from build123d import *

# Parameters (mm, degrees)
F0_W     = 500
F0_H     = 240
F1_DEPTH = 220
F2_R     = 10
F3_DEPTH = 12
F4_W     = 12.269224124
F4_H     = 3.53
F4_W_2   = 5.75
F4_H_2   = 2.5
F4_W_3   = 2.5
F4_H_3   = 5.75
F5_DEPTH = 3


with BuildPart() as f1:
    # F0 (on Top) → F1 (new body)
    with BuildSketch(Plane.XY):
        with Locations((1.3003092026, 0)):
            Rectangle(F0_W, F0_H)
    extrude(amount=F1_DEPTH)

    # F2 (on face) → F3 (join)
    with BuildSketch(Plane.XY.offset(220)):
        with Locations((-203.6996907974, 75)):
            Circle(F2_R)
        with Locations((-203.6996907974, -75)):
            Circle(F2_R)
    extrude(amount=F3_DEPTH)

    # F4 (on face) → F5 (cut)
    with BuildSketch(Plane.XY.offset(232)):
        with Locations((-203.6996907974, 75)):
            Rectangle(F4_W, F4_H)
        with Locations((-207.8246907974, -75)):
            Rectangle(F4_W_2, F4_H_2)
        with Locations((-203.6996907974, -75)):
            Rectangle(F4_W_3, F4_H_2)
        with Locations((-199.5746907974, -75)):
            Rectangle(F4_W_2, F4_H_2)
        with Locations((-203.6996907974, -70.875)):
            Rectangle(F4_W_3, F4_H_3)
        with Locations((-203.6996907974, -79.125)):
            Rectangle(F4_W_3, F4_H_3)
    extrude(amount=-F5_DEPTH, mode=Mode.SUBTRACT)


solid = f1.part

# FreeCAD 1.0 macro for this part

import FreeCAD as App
import Part
import Sketcher
from FreeCAD import Vector
Q = App.Units.Quantity

doc = App.newDocument("Part")
params = doc.addObject("Spreadsheet::Sheet", "Params")
for row, (alias, value) in enumerate([
    ("sketch1_width", "500 mm"),
    ("sketch1_height", "240 mm"),
    ("pad1_length", "220 mm"),
    ("sketch2_diameter", "20 mm"),
    ("pad2_length", "12 mm"),
    ("sketch3_width", "2.5 mm"),
    ("sketch3_height", "3.53 mm"),
    ("pocket1_length", "3 mm"),
], start=1):
    params.set(f"A{row}", alias)
    params.set(f"B{row}", "=" + value)
    params.setAlias(f"B{row}", alias)

body = doc.addObject("PartDesign::Body", "Body")

sketch1 = body.newObject("Sketcher::SketchObject", "Sketch")
sketch1.AttachmentSupport = (doc.getObject("XY_Plane"), [""])
sketch1.MapMode = "FlatFace"
sketch1.addGeometry([
    Part.LineSegment(Vector(-248.699691, 120, 0), Vector(-248.699691, -120, 0)),
    Part.LineSegment(Vector(-248.699691, -120, 0), Vector(251.300309, -120, 0)),
    Part.LineSegment(Vector(251.300309, -120, 0), Vector(251.300309, 120, 0)),
    Part.LineSegment(Vector(251.300309, 120, 0), Vector(-248.699691, 120, 0)),
], False)
sketch1.addConstraint([
    Sketcher.Constraint("Coincident", 0, 2, 1, 1),
    Sketcher.Constraint("Coincident", 1, 2, 2, 1),
    Sketcher.Constraint("Coincident", 2, 2, 3, 1),
    Sketcher.Constraint("Coincident", 3, 2, 0, 1),
    Sketcher.Constraint("Vertical", 0),
    Sketcher.Constraint("Horizontal", 1),
    Sketcher.Constraint("Vertical", 2),
    Sketcher.Constraint("Horizontal", 3),
    Sketcher.Constraint("DistanceX", 1, 1, 1, 2, Q("500 mm")),
    Sketcher.Constraint("DistanceY", 0, 2, 0, 1, Q("240 mm")),
    Sketcher.Constraint("DistanceY", 0, 2, -1, 1, Q("120 mm")),
    Sketcher.Constraint("DistanceX", 0, 2, -1, 1, Q("248.699691 mm")),
])
sketch1.setExpression("Constraints[8]", "Params.sketch1_width")
sketch1.setExpression("Constraints[9]", "Params.sketch1_height")
pad1 = body.newObject("PartDesign::Pad", "Pad")
pad1.Profile = sketch1
pad1.setExpression("Length", "Params.pad1_length")

sketch2 = body.newObject("Sketcher::SketchObject", "Sketch001")
sketch2.AttachmentSupport = (doc.getObject("XY_Plane"), [""])
sketch2.MapMode = "FlatFace"
sketch2.AttachmentOffset = App.Placement(Vector(0, 0, 220), App.Rotation())
sketch2.addGeometry([
    Part.Circle(Vector(-203.699691, 75, 0), Vector(0, 0, 1), 10),
    Part.Circle(Vector(-203.699691, -75, 0), Vector(0, 0, 1), 10),
], False)
sketch2.addConstraint([
    Sketcher.Constraint("Equal", 0, 1),
    Sketcher.Constraint("Symmetric", 0, 3, 1, 3, -1),
    Sketcher.Constraint("Diameter", 0, Q("20 mm")),
    Sketcher.Constraint("DistanceY", -1, 1, 0, 3, Q("75 mm")),
    Sketcher.Constraint("DistanceX", 0, 3, -1, 1, Q("203.699691 mm")),
])
sketch2.setExpression("Constraints[2]", "Params.sketch2_diameter")
pad2 = body.newObject("PartDesign::Pad", "Pad001")
pad2.Profile = sketch2
pad2.setExpression("Length", "Params.pad2_length")

sketch3 = body.newObject("Sketcher::SketchObject", "Sketch002")
sketch3.AttachmentSupport = (doc.getObject("XY_Plane"), [""])
sketch3.MapMode = "FlatFace"
sketch3.AttachmentOffset = App.Placement(Vector(0, 0, 232), App.Rotation())
sketch3.addGeometry([
    Part.LineSegment(Vector(-209.834303, 76.765, 0), Vector(-209.834303, 73.235, 0)),
    Part.LineSegment(Vector(-209.834303, 73.235, 0), Vector(-197.565079, 73.235, 0)),
    Part.LineSegment(Vector(-197.565079, 73.235, 0), Vector(-197.565079, 76.765, 0)),
    Part.LineSegment(Vector(-197.565079, 76.765, 0), Vector(-209.834303, 76.765, 0)),
    Part.LineSegment(Vector(-210.699691, -73.75, 0), Vector(-210.699691, -76.25, 0)),
    Part.LineSegment(Vector(-210.699691, -76.25, 0), Vector(-204.949691, -76.25, 0)),
    Part.LineSegment(Vector(-204.949691, -76.25, 0), Vector(-204.949691, -82, 0)),
    Part.LineSegment(Vector(-204.949691, -82, 0), Vector(-202.449691, -82, 0)),
    Part.LineSegment(Vector(-202.449691, -82, 0), Vector(-202.449691, -76.25, 0)),
    Part.LineSegment(Vector(-202.449691, -76.25, 0), Vector(-196.699691, -76.25, 0)),
    Part.LineSegment(Vector(-196.699691, -76.25, 0), Vector(-196.699691, -73.75, 0)),
    Part.LineSegment(Vector(-196.699691, -73.75, 0), Vector(-202.449691, -73.75, 0)),
    Part.LineSegment(Vector(-202.449691, -73.75, 0), Vector(-202.449691, -68, 0)),
    Part.LineSegment(Vector(-202.449691, -68, 0), Vector(-204.949691, -68, 0)),
    Part.LineSegment(Vector(-204.949691, -68, 0), Vector(-204.949691, -73.75, 0)),
    Part.LineSegment(Vector(-204.949691, -73.75, 0), Vector(-210.699691, -73.75, 0)),
], False)
sketch3.addConstraint([
    Sketcher.Constraint("Coincident", 0, 2, 1, 1),
    Sketcher.Constraint("Coincident", 1, 2, 2, 1),
    Sketcher.Constraint("Coincident", 2, 2, 3, 1),
    Sketcher.Constraint("Coincident", 3, 2, 0, 1),
    Sketcher.Constraint("Coincident", 4, 2, 5, 1),
    Sketcher.Constraint("Coincident", 5, 2, 6, 1),
    Sketcher.Constraint("Coincident", 6, 2, 7, 1),
    Sketcher.Constraint("Coincident", 7, 2, 8, 1),
    Sketcher.Constraint("Coincident", 8, 2, 9, 1),
    Sketcher.Constraint("Coincident", 9, 2, 10, 1),
    Sketcher.Constraint("Coincident", 10, 2, 11, 1),
    Sketcher.Constraint("Coincident", 11, 2, 12, 1),
    Sketcher.Constraint("Coincident", 12, 2, 13, 1),
    Sketcher.Constraint("Coincident", 13, 2, 14, 1),
    Sketcher.Constraint("Coincident", 14, 2, 15, 1),
    Sketcher.Constraint("Coincident", 15, 2, 4, 1),
    Sketcher.Constraint("Vertical", 0),
    Sketcher.Constraint("Horizontal", 1),
    Sketcher.Constraint("Vertical", 2),
    Sketcher.Constraint("Horizontal", 3),
    Sketcher.Constraint("Vertical", 4),
    Sketcher.Constraint("Horizontal", 5),
    Sketcher.Constraint("Vertical", 6),
    Sketcher.Constraint("Horizontal", 7),
    Sketcher.Constraint("Vertical", 8),
    Sketcher.Constraint("Horizontal", 9),
    Sketcher.Constraint("Vertical", 10),
    Sketcher.Constraint("Horizontal", 11),
    Sketcher.Constraint("Vertical", 12),
    Sketcher.Constraint("Horizontal", 13),
    Sketcher.Constraint("Vertical", 14),
    Sketcher.Constraint("Horizontal", 15),
    Sketcher.Constraint("Horizontal", 5, 2, 8, 2),
    Sketcher.Constraint("Horizontal", 11, 2, 14, 2),
    Sketcher.Constraint("Vertical", 8, 2, 11, 2),
    Sketcher.Constraint("Vertical", 6, 2, 13, 2),
    Sketcher.Constraint("Equal", 5, 9),
    Sketcher.Constraint("Equal", 13, 4),
    Sketcher.Constraint("Equal", 15, 6),
    Sketcher.Constraint("Equal", 8, 12),
    Sketcher.Constraint("DistanceX", 7, 1, 7, 2, Q("2.5 mm")),
    Sketcher.Constraint("DistanceY", 6, 2, -1, 1, Q("82 mm")),
    Sketcher.Constraint("DistanceY", 12, 2, -1, 1, Q("68 mm")),
    Sketcher.Constraint("DistanceY", 0, 2, 0, 1, Q("3.53 mm")),
    Sketcher.Constraint("DistanceY", -1, 1, 0, 2, Q("73.235 mm")),
    Sketcher.Constraint("DistanceX", 1, 1, 1, 2, Q("12.269224 mm")),
    Sketcher.Constraint("DistanceX", 1, 2, -1, 1, Q("197.565079 mm")),
    Sketcher.Constraint("DistanceX", 4, 2, -1, 1, Q("210.699691 mm")),
])
sketch3.setExpression("Constraints[40]", "Params.sketch3_width")
sketch3.setExpression("Constraints[43]", "Params.sketch3_height")
pocket1 = body.newObject("PartDesign::Pocket", "Pocket")
pocket1.Profile = sketch3
pocket1.setExpression("Length", "Params.pocket1_length")

doc.recompute()
